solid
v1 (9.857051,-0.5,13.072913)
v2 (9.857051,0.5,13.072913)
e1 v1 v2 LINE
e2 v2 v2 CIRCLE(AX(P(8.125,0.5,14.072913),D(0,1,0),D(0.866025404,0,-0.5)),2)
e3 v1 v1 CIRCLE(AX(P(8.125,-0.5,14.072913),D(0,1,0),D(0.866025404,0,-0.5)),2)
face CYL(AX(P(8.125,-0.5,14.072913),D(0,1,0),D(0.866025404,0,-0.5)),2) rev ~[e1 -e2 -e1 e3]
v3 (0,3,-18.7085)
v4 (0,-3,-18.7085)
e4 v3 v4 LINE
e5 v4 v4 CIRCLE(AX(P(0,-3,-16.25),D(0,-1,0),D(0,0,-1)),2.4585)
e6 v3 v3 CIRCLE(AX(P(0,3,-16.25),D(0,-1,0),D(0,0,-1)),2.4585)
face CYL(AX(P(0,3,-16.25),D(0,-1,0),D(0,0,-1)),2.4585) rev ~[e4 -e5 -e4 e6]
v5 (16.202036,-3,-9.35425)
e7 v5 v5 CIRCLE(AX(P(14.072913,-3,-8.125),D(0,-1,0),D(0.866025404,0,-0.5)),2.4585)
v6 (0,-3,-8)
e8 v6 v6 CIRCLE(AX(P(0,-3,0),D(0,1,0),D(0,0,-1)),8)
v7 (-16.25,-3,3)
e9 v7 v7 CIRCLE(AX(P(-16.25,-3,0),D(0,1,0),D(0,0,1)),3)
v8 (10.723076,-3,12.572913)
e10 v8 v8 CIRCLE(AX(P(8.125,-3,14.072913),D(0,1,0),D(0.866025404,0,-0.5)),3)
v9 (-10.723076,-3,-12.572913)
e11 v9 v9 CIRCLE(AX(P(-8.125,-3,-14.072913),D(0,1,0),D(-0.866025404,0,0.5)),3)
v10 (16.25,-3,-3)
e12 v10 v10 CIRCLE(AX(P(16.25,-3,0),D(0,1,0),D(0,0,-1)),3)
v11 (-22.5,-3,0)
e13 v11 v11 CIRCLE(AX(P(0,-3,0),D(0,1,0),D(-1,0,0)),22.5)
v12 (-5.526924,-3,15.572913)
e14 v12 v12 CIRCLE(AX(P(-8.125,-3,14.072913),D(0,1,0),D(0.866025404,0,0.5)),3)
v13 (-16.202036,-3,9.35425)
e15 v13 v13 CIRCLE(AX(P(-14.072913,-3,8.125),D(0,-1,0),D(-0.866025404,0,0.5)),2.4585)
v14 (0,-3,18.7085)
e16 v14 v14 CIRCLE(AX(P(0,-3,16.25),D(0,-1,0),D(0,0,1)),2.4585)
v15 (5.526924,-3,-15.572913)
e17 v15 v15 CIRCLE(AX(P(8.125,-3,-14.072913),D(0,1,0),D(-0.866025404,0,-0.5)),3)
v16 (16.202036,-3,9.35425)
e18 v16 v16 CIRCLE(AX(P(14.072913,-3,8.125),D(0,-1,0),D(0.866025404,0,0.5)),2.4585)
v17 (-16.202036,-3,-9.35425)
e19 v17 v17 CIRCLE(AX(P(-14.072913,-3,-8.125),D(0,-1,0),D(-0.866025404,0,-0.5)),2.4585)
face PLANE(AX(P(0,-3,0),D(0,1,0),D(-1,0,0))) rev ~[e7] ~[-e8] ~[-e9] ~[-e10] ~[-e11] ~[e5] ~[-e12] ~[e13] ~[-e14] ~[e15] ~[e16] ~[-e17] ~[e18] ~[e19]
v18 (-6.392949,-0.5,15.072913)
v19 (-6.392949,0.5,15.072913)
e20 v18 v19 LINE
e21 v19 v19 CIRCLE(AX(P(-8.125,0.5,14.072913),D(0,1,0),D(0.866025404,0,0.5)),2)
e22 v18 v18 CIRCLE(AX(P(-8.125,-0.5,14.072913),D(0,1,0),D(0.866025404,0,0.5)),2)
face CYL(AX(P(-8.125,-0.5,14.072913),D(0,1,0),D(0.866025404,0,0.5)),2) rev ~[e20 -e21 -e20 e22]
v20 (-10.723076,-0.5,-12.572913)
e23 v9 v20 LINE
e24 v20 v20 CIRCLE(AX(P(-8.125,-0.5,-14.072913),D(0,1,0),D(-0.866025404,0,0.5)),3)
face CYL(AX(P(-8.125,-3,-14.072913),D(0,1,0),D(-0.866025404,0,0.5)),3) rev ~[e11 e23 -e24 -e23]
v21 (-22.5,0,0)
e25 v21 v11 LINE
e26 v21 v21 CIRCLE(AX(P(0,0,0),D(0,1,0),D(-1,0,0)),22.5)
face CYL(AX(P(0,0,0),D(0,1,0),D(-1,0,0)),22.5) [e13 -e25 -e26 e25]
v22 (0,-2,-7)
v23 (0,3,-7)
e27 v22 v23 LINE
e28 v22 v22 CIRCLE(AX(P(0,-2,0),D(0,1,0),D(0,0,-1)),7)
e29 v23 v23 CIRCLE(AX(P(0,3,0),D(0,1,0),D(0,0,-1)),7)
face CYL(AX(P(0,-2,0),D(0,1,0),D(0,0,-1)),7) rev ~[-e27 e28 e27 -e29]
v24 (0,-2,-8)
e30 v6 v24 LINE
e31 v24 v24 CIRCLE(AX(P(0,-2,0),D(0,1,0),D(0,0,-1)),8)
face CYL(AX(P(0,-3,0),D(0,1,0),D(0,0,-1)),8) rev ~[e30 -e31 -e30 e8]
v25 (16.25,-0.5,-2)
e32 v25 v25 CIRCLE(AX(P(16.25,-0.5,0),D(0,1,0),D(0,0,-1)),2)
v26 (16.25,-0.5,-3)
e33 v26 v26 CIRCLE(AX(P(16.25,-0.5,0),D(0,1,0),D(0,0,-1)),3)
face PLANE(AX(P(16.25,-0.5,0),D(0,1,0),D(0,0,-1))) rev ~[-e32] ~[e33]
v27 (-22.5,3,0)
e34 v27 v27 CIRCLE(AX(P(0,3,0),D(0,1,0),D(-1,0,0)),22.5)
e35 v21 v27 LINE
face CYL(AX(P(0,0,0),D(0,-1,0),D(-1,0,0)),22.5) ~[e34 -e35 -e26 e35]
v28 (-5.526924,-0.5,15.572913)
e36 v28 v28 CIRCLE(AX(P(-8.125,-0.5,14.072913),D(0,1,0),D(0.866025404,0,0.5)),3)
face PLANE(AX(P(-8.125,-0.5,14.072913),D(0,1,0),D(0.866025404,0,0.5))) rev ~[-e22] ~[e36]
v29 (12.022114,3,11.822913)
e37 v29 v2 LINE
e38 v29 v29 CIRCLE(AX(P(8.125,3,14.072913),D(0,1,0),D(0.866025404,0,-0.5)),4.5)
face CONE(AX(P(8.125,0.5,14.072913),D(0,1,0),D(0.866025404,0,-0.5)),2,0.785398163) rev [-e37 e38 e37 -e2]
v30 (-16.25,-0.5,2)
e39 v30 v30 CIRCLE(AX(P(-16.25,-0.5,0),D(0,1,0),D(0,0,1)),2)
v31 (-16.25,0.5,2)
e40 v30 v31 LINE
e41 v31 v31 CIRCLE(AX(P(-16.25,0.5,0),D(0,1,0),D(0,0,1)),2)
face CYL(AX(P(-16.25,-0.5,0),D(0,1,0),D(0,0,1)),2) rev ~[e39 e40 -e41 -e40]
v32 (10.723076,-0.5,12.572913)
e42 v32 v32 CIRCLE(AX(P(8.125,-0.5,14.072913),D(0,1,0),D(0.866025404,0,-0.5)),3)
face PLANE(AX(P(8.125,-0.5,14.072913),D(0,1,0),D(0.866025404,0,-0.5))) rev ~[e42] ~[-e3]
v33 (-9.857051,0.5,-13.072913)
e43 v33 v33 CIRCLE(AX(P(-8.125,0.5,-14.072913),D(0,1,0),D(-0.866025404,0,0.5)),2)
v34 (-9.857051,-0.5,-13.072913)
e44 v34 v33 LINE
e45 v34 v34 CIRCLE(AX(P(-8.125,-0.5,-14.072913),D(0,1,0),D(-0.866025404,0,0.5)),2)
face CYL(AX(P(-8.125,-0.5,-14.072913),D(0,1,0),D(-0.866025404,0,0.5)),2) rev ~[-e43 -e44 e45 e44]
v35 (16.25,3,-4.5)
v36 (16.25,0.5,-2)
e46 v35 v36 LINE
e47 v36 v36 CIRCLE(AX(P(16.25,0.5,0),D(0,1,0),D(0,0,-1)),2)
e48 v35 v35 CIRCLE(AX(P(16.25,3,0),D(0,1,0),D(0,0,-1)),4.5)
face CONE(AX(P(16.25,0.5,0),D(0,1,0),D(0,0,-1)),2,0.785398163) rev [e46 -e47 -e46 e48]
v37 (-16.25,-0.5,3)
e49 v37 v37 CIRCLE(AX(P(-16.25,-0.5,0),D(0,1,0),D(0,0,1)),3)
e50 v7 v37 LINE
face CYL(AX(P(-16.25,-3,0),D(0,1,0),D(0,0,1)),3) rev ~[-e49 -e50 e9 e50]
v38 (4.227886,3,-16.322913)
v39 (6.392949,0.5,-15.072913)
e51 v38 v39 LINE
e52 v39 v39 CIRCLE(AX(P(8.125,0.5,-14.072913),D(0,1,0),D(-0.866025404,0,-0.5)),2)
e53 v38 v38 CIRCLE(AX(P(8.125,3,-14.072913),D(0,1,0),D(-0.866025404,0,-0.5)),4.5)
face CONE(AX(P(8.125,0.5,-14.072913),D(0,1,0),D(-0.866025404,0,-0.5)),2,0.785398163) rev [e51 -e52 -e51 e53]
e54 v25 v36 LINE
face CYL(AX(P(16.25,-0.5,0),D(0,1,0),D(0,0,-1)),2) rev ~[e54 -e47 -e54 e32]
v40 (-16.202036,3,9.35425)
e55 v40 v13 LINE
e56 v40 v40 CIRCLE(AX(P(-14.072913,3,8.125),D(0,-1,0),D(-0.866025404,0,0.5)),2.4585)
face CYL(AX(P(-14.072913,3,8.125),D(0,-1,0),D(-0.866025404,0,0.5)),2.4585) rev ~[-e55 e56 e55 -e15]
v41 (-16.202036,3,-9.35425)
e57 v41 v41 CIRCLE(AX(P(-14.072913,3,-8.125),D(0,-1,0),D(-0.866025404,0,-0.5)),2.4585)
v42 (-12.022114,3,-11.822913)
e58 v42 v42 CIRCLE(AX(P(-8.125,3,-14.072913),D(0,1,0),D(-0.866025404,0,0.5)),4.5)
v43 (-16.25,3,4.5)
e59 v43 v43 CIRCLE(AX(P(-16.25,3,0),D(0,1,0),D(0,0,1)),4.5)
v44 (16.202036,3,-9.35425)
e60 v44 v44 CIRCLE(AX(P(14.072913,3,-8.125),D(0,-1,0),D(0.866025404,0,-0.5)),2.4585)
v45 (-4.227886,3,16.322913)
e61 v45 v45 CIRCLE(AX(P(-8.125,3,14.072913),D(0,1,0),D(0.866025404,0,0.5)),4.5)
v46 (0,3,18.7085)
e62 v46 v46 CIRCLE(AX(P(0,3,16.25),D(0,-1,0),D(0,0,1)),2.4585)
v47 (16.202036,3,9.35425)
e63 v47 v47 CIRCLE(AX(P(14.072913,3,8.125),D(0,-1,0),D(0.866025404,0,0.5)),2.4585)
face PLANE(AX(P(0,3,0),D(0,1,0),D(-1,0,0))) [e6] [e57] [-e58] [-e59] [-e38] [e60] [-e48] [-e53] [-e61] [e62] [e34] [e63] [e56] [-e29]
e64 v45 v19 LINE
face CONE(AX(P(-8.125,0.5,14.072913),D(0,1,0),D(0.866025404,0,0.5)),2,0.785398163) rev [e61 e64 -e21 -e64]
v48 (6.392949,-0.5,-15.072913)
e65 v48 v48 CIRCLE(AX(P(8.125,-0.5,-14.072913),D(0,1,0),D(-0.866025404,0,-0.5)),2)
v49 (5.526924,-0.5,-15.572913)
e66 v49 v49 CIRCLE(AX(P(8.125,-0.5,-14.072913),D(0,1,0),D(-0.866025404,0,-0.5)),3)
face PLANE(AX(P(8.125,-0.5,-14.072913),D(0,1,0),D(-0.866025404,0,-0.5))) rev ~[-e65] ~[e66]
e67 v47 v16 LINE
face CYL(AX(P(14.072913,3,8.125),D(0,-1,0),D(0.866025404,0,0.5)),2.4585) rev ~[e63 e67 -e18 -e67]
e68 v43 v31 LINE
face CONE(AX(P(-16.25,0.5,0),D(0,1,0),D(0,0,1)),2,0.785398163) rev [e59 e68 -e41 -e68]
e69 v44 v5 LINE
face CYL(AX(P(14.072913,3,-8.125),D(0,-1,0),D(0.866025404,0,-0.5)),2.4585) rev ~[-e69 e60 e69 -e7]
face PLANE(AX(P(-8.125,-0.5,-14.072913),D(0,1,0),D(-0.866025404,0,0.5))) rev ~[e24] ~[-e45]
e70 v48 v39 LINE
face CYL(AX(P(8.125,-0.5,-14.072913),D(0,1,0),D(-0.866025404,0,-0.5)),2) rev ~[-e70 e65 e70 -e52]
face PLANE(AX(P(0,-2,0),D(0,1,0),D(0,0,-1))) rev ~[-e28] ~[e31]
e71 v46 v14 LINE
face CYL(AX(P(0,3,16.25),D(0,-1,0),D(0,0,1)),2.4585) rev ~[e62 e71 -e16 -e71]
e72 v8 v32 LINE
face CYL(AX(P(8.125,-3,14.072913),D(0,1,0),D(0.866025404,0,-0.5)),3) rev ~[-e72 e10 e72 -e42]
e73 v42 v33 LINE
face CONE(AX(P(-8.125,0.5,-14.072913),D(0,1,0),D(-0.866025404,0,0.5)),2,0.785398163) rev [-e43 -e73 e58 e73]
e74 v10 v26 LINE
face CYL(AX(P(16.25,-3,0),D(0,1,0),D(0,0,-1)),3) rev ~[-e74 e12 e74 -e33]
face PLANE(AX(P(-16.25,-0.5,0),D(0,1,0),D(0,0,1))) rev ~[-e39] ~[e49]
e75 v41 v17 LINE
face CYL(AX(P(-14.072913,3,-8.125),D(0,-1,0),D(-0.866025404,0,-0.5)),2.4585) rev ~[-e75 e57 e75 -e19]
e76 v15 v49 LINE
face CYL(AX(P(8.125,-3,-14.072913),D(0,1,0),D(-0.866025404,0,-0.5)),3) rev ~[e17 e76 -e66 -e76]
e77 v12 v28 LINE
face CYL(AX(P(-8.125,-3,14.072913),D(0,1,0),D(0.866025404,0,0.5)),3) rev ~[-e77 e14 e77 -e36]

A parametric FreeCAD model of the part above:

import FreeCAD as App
import Part
import Sketcher


def edges_at(feature, points):
    """Names of the edges that pass closest to the given points."""
    edges = feature.Shape.Edges
    near = lambda p: min(range(len(edges)), key=lambda i: edges[i].distToShape(Part.Vertex(*p))[0])
    return sorted({f"Edge{near(p) + 1}" for p in points})

doc = App.newDocument("Part")
body = doc.addObject("PartDesign::Body", "Body")

sketch1 = body.newObject("Sketcher::SketchObject", "Sketch")
sketch1.AttachmentSupport = (doc.getObject("XZ_Plane"), [""])
sketch1.MapMode = "FlatFace"
sketch1.addGeometry(Part.Circle(App.Vector(0, 0, 0), App.Vector(0, 0, 1), 22), False)
sketch1.addConstraint([
    Sketcher.Constraint("Coincident", 0, 3, -1, 1),
    Sketcher.Constraint("Diameter", 0, 45.0),
])
pad1 = body.newObject("PartDesign::Pad", "Pad")
pad1.Profile = sketch1
pad1.Length = 6
pad1.Midplane = True

sketch2 = body.newObject("Sketcher::SketchObject", "Sketch001")
sketch2.AttachmentSupport = (doc.getObject("XZ_Plane"), [""])
sketch2.MapMode = "FlatFace"
sketch2.AttachmentOffset = App.Placement(App.Vector(0, 0, 3), App.Rotation())
sketch2.addGeometry(Part.Circle(App.Vector(16.2, 0, 0), App.Vector(0, 0, 1), 2), False)
sketch2.addConstraint([
    Sketcher.Constraint("PointOnObject", 0, 3, -1),
    Sketcher.Constraint("Diameter", 0, 4.0),
    Sketcher.Constraint("DistanceX", -1, 1, 0, 3, 16.25),
])
doc.recompute()
hole = body.newObject("PartDesign::Hole", "Hole")
hole.Profile = sketch2
hole.ThreadType = "None"
hole.Diameter = 4
hole.DepthType = "Dimension"
hole.Depth = 6
hole.DrillPoint = "Flat"
hole.HoleCutType = "Counterbore"
hole.HoleCutDiameter = 6
hole.HoleCutDepth = 2.5
doc.recompute()

chamfer = body.newObject("PartDesign::Chamfer", "Chamfer")
chamfer.Base = (hole, edges_at(hole, [(16.25, 3, 2)]))
chamfer.Size = 2.5
doc.recompute()

polarpattern = body.newObject("PartDesign::PolarPattern", "PolarPattern")
polarpattern.Originals = [hole, chamfer]
polarpattern.Axis = (doc.getObject("Y_Axis"), [""])
polarpattern.Angle = 360
polarpattern.Occurrences = 6
body.Tip = polarpattern

sketch3 = body.newObject("Sketcher::SketchObject", "Sketch002")
sketch3.AttachmentSupport = (doc.getObject("XZ_Plane"), [""])
sketch3.MapMode = "FlatFace"
sketch3.AttachmentOffset = App.Placement(App.Vector(0, 0, -3), App.Rotation())
sketch3.addGeometry(Part.Circle(App.Vector(0, 16.2, 0), App.Vector(0, 0, 1), 2.5), False)
sketch3.addConstraint([
    Sketcher.Constraint("PointOnObject", 0, 3, -2),
    Sketcher.Constraint("Diameter", 0, 4.917),
    Sketcher.Constraint("DistanceY", -1, 1, 0, 3, 16.25),
])
doc.recompute()
hole2 = body.newObject("PartDesign::Hole", "Hole001")
hole2.Profile = sketch3
hole2.ThreadType = "None"
hole2.Diameter = 4.917
hole2.DepthType = "Dimension"
hole2.Depth = 6
hole2.DrillPoint = "Flat"
hole2.Reversed = True
doc.recompute()

polarpattern2 = body.newObject("PartDesign::PolarPattern", "PolarPattern001")
polarpattern2.Originals = [hole2]
polarpattern2.Axis = (doc.getObject("Y_Axis"), [""])
polarpattern2.Angle = 360
polarpattern2.Occurrences = 6
body.Tip = polarpattern2

sketch4 = body.newObject("Sketcher::SketchObject", "Sketch003")
sketch4.AttachmentSupport = (doc.getObject("XZ_Plane"), [""])
sketch4.MapMode = "FlatFace"
sketch4.AttachmentOffset = App.Placement(App.Vector(0, 0, 3), App.Rotation())
sketch4.addGeometry(Part.Circle(App.Vector(0, 0, 0), App.Vector(0, 0, 1), 7), False)
sketch4.addConstraint([
    Sketcher.Constraint("Coincident", 0, 3, -1, 1),
    Sketcher.Constraint("Diameter", 0, 14.0),
])
doc.recompute()
hole3 = body.newObject("PartDesign::Hole", "Hole002")
hole3.Profile = sketch4
hole3.ThreadType = "None"
hole3.Diameter = 14
hole3.DepthType = "Dimension"
hole3.Depth = 6
hole3.DrillPoint = "Flat"
hole3.HoleCutType = "Counterbore"
hole3.HoleCutDiameter = 16
hole3.HoleCutDepth = 1

doc.recompute()
